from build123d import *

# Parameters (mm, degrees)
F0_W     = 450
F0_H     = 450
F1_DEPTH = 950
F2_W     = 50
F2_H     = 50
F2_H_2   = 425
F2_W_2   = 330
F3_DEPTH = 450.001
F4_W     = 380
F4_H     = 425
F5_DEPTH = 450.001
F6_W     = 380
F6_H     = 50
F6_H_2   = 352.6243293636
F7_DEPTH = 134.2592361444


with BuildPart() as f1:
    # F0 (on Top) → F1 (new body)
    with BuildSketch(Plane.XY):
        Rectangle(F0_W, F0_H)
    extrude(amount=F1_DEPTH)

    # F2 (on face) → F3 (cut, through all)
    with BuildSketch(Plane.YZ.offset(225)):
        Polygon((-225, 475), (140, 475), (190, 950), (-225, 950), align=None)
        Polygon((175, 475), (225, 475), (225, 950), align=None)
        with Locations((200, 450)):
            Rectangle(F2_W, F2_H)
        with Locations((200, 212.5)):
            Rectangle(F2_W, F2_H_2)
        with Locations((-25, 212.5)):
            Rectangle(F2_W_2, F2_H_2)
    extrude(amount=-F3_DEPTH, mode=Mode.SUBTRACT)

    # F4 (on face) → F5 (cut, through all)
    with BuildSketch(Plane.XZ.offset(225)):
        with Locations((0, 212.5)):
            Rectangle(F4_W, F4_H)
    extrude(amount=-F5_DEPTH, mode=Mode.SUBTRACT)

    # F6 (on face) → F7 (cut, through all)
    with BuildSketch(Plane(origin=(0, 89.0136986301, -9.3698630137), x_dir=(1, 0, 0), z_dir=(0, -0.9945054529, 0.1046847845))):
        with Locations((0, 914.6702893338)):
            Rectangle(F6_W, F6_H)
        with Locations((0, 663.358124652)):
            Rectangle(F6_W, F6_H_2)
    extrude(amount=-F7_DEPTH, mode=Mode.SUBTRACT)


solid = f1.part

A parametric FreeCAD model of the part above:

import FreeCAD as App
import Part
import Sketcher
from FreeCAD import Vector
Q = App.Units.Quantity


def add_polygon(sketch, points):
    """Adds a closed chain of lines whose ends are joined by coincident constraints."""
    first, n = sketch.GeometryCount, len(points)
    for a, b in zip(points, points[1:] + points[:1]):
        sketch.addGeometry(Part.LineSegment(App.Vector(*a, 0), App.Vector(*b, 0)), False)
    for i in range(n):
        sketch.addConstraint(Sketcher.Constraint("Coincident", first + i, 2, first + (i + 1) % n, 1))

doc = App.newDocument("Part")
params = doc.addObject("Spreadsheet::Sheet", "Params")
for row, (alias, value) in enumerate([
    ("sketch1_width", "450 mm"),
    ("pad1_length", "950 mm"),
    ("sketch2_width", "365 mm"),
    ("sketch2_width2", "415 mm"),
    ("sketch2_width3", "330 mm"),
    ("sketch2_height", "475 mm"),
    ("sketch2_height2", "425 mm"),
    ("sketch3_width", "380 mm"),
    ("sketch3_height", "425 mm"),
    ("sketch4_width", "380 mm"),
    ("sketch4_height", "50 mm"),
], start=1):
    params.set(f"A{row}", alias)
    params.set(f"B{row}", "=" + value)
    params.setAlias(f"B{row}", alias)

body = doc.addObject("PartDesign::Body", "Body")

# Sketch on XY plane
sketch1 = body.newObject("Sketcher::SketchObject", "Sketch")
sketch1.AttachmentSupport = (doc.getObject("XY_Plane"), [""])
sketch1.MapMode = "FlatFace"
add_polygon(sketch1, [(-225, 225), (-225, -225), (225, -225), (225, 225)])  # lines 0-3
sketch1.addConstraint(Sketcher.Constraint("Vertical", 0))
sketch1.addConstraint(Sketcher.Constraint("Horizontal", 1))
sketch1.addConstraint(Sketcher.Constraint("Vertical", 2))
sketch1.addConstraint(Sketcher.Constraint("Horizontal", 3))
sketch1.addConstraint(Sketcher.Constraint("Symmetric", 0, 2, 2, 2, -1, 1))
sketch1.addConstraint(Sketcher.Constraint("Equal", 3, 0))
sketch1.addConstraint(Sketcher.Constraint("DistanceX", 1, 1, 1, 2, Q("450 mm")))
sketch1.setExpression("Constraints[10]", "Params.sketch1_width")
pad1 = body.newObject("PartDesign::Pad", "Pad")
pad1.Profile = sketch1
pad1.setExpression("Length", "Params.pad1_length")

# Sketch on YZ plane
sketch2 = body.newObject("Sketcher::SketchObject", "Sketch001")
sketch2.AttachmentSupport = (doc.getObject("YZ_Plane"), [""])
sketch2.MapMode = "FlatFace"
sketch2.AttachmentOffset = App.Placement(Vector(0, 0, 225), App.Rotation())
add_polygon(sketch2, [(-225, 475), (140, 475), (190, 950), (-225, 950)])  # lines 0-3
add_polygon(sketch2, [(225, 950), (175, 475), (175, 0), (225, 0)])  # lines 4-7
add_polygon(sketch2, [(-190, 425), (-190, 0), (140, 0), (140, 425)])  # lines 8-11
sketch2.addConstraint(Sketcher.Constraint("Horizontal", 0))
sketch2.addConstraint(Sketcher.Constraint("Horizontal", 2))
sketch2.addConstraint(Sketcher.Constraint("Vertical", 3))
sketch2.addConstraint(Sketcher.Constraint("Vertical", 5))
sketch2.addConstraint(Sketcher.Constraint("Horizontal", 6))
sketch2.addConstraint(Sketcher.Constraint("Vertical", 7))
sketch2.addConstraint(Sketcher.Constraint("Vertical", 8))
sketch2.addConstraint(Sketcher.Constraint("Horizontal", 9))
sketch2.addConstraint(Sketcher.Constraint("Vertical", 10))
sketch2.addConstraint(Sketcher.Constraint("Horizontal", 11))
sketch2.addConstraint(Sketcher.Constraint("Symmetric", 2, 2, 7, 2, -2))
sketch2.addConstraint(Sketcher.Constraint("PointOnObject", 5, 2, -1))
sketch2.addConstraint(Sketcher.Constraint("PointOnObject", 8, 2, -1))
sketch2.addConstraint(Sketcher.Constraint("Parallel", 1, 4))
sketch2.addConstraint(Sketcher.Constraint("Horizontal", 3, 2, 4, 2))
sketch2.addConstraint(Sketcher.Constraint("Vertical", 0, 2, 9, 2))
sketch2.addConstraint(Sketcher.Constraint("Equal", 3, 5))
sketch2.addConstraint(Sketcher.Constraint("DistanceX", 0, 1, 0, 2, Q("365 mm")))
sketch2.addConstraint(Sketcher.Constraint("DistanceX", 2, 2, 2, 1, Q("415 mm")))
sketch2.addConstraint(Sketcher.Constraint("DistanceX", 9, 1, 9, 2, Q("330 mm")))
sketch2.addConstraint(Sketcher.Constraint("DistanceY", 3, 2, 3, 1, Q("475 mm")))
sketch2.addConstraint(Sketcher.Constraint("DistanceY", 8, 2, 8, 1, Q("425 mm")))
sketch2.addConstraint(Sketcher.Constraint("DistanceX", -1, 1, 0, 2, Q("140 mm")))
sketch2.setExpression("Constraints[29]", "Params.sketch2_width")
sketch2.setExpression("Constraints[30]", "Params.sketch2_width2")
sketch2.setExpression("Constraints[31]", "Params.sketch2_width3")
sketch2.setExpression("Constraints[32]", "Params.sketch2_height")
sketch2.setExpression("Constraints[33]", "Params.sketch2_height2")
pocket1 = body.newObject("PartDesign::Pocket", "Pocket")
pocket1.Profile = sketch2
pocket1.Type = "ThroughAll"

# Sketch on XZ plane
sketch3 = body.newObject("Sketcher::SketchObject", "Sketch002")
sketch3.AttachmentSupport = (doc.getObject("XZ_Plane"), [""])
sketch3.MapMode = "FlatFace"
sketch3.AttachmentOffset = App.Placement(Vector(0, 0, 225), App.Rotation())
add_polygon(sketch3, [(-190, 425), (-190, 0), (190, 0), (190, 425)])  # lines 0-3
sketch3.addConstraint(Sketcher.Constraint("Vertical", 0))
sketch3.addConstraint(Sketcher.Constraint("Horizontal", 1))
sketch3.addConstraint(Sketcher.Constraint("Vertical", 2))
sketch3.addConstraint(Sketcher.Constraint("Horizontal", 3))
sketch3.addConstraint(Sketcher.Constraint("Symmetric", 0, 2, 1, 2, -1, 1))
sketch3.addConstraint(Sketcher.Constraint("DistanceX", 1, 1, 1, 2, Q("380 mm")))
sketch3.addConstraint(Sketcher.Constraint("DistanceY", 0, 2, 0, 1, Q("425 mm")))
sketch3.setExpression("Constraints[9]", "Params.sketch3_width")
sketch3.setExpression("Constraints[10]", "Params.sketch3_height")
pocket2 = body.newObject("PartDesign::Pocket", "Pocket001")
pocket2.Profile = sketch3
pocket2.Type = "ThroughAll"

# Sketch on an angled plane
sketch4 = body.newObject("Sketcher::SketchObject", "Sketch003")
sketch4.Placement = App.Placement(Vector(0, 89.013699, -9.369863), App.Rotation(Vector(1, 0, 0), Vector(0, 0.104684785, 0.994505453), Vector(0, -0.994505453, 0.104684785), "ZXY"))
add_polygon(sketch4, [(-190, 940), (-190, 890), (190, 890), (190, 940)])  # lines 0-3
add_polygon(sketch4, [(-190, 840), (-190, 487), (190, 487), (190, 840)])  # lines 4-7
sketch4.addConstraint(Sketcher.Constraint("Vertical", 0))
sketch4.addConstraint(Sketcher.Constraint("Horizontal", 1))
sketch4.addConstraint(Sketcher.Constraint("Vertical", 2))
sketch4.addConstraint(Sketcher.Constraint("Horizontal", 3))
sketch4.addConstraint(Sketcher.Constraint("Vertical", 4))
sketch4.addConstraint(Sketcher.Constraint("Horizontal", 5))
sketch4.addConstraint(Sketcher.Constraint("Vertical", 6))
sketch4.addConstraint(Sketcher.Constraint("Horizontal", 7))
sketch4.addConstraint(Sketcher.Constraint("Vertical", 3, 2, 4, 2))
sketch4.addConstraint(Sketcher.Constraint("Vertical", 2, 2, 5, 2))
sketch4.addConstraint(Sketcher.Constraint("DistanceX", 1, 1, 1, 2, Q("380 mm")))
sketch4.addConstraint(Sketcher.Constraint("DistanceY", 0, 2, 0, 1, Q("50 mm")))
sketch4.addConstraint(Sketcher.Constraint("DistanceX", 0, 2, -1, 1, Q("190 mm")))
sketch4.addConstraint(Sketcher.Constraint("DistanceY", 6, 2, 1, 2, Q("50 mm")))
sketch4.addConstraint(Sketcher.Constraint("DistanceY", 4, 2, 4, 1, Q("352.624329 mm")))
sketch4.addConstraint(Sketcher.Constraint("DistanceY", -1, 1, 0, 2, Q("889.67029 mm")))
sketch4.setExpression("Constraints[18]", "Params.sketch4_width")
sketch4.setExpression("Constraints[19]", "Params.sketch4_height")
pocket3 = body.newObject("PartDesign::Pocket", "Pocket002")
pocket3.Profile = sketch4
pocket3.Type = "ThroughAll"

doc.recompute()
